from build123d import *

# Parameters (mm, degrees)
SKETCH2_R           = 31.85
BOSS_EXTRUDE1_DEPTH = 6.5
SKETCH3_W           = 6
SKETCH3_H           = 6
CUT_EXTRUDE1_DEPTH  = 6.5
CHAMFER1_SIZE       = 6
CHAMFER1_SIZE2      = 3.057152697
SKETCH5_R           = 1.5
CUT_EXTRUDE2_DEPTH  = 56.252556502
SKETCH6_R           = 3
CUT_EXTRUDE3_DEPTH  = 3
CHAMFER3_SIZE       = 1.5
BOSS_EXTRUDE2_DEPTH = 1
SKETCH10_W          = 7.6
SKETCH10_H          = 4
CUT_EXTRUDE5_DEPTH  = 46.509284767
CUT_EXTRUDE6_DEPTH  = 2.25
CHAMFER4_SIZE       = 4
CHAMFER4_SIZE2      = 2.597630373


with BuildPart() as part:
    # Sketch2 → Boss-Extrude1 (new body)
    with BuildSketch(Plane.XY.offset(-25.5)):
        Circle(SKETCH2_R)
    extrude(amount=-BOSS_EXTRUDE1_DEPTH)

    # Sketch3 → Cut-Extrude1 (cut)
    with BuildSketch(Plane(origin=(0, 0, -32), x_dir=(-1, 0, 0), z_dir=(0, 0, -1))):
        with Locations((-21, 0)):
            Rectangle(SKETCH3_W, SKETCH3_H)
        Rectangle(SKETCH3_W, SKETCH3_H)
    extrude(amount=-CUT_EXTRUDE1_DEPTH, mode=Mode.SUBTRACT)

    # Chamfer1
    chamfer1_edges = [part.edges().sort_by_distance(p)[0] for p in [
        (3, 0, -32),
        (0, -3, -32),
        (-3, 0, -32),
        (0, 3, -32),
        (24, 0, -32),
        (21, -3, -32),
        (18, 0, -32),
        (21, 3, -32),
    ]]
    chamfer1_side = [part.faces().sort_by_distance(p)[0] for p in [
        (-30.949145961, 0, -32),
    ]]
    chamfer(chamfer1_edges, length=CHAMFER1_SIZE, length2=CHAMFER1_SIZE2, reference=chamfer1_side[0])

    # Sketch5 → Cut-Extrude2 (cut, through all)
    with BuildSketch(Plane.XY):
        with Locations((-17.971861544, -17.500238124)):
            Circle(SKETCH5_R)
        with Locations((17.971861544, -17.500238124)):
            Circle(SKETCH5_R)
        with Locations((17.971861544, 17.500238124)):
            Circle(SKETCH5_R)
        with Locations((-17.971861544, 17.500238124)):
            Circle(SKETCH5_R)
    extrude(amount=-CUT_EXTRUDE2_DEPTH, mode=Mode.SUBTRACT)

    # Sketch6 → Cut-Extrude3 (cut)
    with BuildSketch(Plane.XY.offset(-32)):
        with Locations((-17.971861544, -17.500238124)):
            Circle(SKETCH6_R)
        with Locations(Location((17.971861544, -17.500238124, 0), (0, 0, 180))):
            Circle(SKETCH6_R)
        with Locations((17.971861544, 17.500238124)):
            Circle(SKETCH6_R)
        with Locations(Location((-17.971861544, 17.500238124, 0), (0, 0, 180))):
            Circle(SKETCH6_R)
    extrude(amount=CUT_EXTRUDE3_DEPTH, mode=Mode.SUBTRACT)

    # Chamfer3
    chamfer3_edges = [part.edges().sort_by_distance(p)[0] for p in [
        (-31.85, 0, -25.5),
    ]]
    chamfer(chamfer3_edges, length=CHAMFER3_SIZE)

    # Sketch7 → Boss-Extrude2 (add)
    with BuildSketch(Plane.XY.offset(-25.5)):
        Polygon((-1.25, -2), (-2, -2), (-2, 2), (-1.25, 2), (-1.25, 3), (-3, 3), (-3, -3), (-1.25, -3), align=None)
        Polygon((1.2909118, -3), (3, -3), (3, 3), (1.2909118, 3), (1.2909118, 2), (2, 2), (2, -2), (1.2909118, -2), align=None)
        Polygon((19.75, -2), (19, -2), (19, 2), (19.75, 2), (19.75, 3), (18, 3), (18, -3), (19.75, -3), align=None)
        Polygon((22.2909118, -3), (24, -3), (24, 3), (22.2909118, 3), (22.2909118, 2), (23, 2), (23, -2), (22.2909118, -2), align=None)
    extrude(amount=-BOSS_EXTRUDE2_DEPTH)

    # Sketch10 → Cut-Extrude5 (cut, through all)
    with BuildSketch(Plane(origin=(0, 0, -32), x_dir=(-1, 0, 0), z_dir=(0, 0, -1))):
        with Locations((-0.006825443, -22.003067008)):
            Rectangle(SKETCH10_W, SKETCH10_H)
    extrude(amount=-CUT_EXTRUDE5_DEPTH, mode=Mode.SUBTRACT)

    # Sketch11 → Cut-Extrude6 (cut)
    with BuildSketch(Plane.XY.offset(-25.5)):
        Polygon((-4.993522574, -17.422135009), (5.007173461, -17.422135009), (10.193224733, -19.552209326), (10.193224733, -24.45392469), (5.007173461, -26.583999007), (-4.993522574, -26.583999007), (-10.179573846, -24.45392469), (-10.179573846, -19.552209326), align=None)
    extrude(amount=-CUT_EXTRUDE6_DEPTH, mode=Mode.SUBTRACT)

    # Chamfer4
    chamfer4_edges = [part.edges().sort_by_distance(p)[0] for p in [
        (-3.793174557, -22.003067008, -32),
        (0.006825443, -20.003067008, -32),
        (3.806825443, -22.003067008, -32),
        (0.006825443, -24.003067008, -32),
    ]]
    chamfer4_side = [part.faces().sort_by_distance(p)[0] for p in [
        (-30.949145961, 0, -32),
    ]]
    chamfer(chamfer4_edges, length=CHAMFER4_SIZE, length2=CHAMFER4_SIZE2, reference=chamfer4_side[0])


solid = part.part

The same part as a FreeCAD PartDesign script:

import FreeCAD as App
import Part
import Sketcher
Q = App.Units.Quantity


def edges_at(feature, points):
    """Names of the edges that pass closest to the given points."""
    edges = feature.Shape.Edges
    near = lambda p: min(range(len(edges)), key=lambda i: edges[i].distToShape(Part.Vertex(*p))[0])
    return sorted({f"Edge{near(p) + 1}" for p in points})


def add_polygon(sketch, points):
    """Adds a closed chain of lines whose ends are joined by coincident constraints."""
    first, n = sketch.GeometryCount, len(points)
    for a, b in zip(points, points[1:] + points[:1]):
        sketch.addGeometry(Part.LineSegment(App.Vector(*a, 0), App.Vector(*b, 0)), False)
    for i in range(n):
        sketch.addConstraint(Sketcher.Constraint("Coincident", first + i, 2, first + (i + 1) % n, 1))

doc = App.newDocument("Part")
params = doc.addObject("Spreadsheet::Sheet", "Params")
for row, (alias, value) in enumerate([
    ("sketch1_diameter", "63.7 mm"),
    ("pad1_length", "6.5 mm"),
    ("sketch2_width", "6 mm"),
    ("pocket1_length", "6.5 mm"),
    ("chamfer_size", "6 mm"),
    ("chamfer_size2", "3.057153 mm"),
    ("sketch3_diameter", "3 mm"),
    ("sketch4_diameter", "6 mm"),
    ("pocket3_length", "3 mm"),
    ("chamfer2_size", "1.5 mm"),
    ("sketch5_height", "4 mm"),
    ("sketch5_height2", "1 mm"),
    ("sketch5_width", "0.75 mm"),
    ("pad2_length", "1 mm"),
    ("sketch6_height", "4 mm"),
    ("sketch6_width", "7.6 mm"),
    ("pocket5_length", "2.25 mm"),
    ("chamfer3_size", "4 mm"),
    ("chamfer3_size2", "2.59763 mm"),
], start=1):
    params.set(f"A{row}", alias)
    params.set(f"B{row}", "=" + value)
    params.setAlias(f"B{row}", alias)

body = doc.addObject("PartDesign::Body", "Body")

sketch1 = body.newObject("Sketcher::SketchObject", "Sketch")
sketch1.AttachmentSupport = (doc.getObject("XY_Plane"), [""])
sketch1.MapMode = "FlatFace"
sketch1.AttachmentOffset = App.Placement(App.Vector(0, 0, -25.5), App.Rotation())
sketch1.addGeometry(Part.Circle(App.Vector(0, 0, 0), App.Vector(0, 0, 1), 32), False)
sketch1.addConstraint([
    Sketcher.Constraint("Coincident", 0, 3, -1, 1),
    Sketcher.Constraint("Diameter", 0, Q("63.7 mm")),
])
sketch1.setExpression("Constraints[1]", "Params.sketch1_diameter")
pad1 = body.newObject("PartDesign::Pad", "Pad")
pad1.Profile = sketch1
pad1.setExpression("Length", "Params.pad1_length")
pad1.Reversed = True

sketch2 = body.newObject("Sketcher::SketchObject", "Sketch001")
sketch2.AttachmentSupport = (doc.getObject("XY_Plane"), [""])
sketch2.MapMode = "FlatFace"
sketch2.AttachmentOffset = App.Placement(App.Vector(0, 0, -32), App.Rotation())
add_polygon(sketch2, [(24, 3), (24, -3), (18, -3), (18, 3)])
add_polygon(sketch2, [(3, 3), (3, -3), (-3, -3), (-3, 3)])
sketch2.addConstraint([
    Sketcher.Constraint("Vertical", 0),
    Sketcher.Constraint("Horizontal", 1),
    Sketcher.Constraint("Vertical", 2),
    Sketcher.Constraint("Horizontal", 3),
    Sketcher.Constraint("Vertical", 4),
    Sketcher.Constraint("Horizontal", 5),
    Sketcher.Constraint("Vertical", 6),
    Sketcher.Constraint("Horizontal", 7),
    Sketcher.Constraint("Symmetric", 4, 2, 6, 2, -1, 1),
    Sketcher.Constraint("Horizontal", 1, 2, 4, 2),
    Sketcher.Constraint("Horizontal", 3, 2, 6, 2),
    Sketcher.Constraint("Equal", 3, 5),
    Sketcher.Constraint("Equal", 7, 0),
    Sketcher.Constraint("DistanceX", 1, 2, 1, 1, Q("6 mm")),
    Sketcher.Constraint("DistanceX", -1, 1, 0, 2, Q("24 mm")),
])
sketch2.setExpression("Constraints[21]", "Params.sketch2_width")
pocket1 = body.newObject("PartDesign::Pocket", "Pocket")
pocket1.Profile = sketch2
pocket1.setExpression("Length", "Params.pocket1_length")
pocket1.Reversed = True
doc.recompute()

chamfer = body.newObject("PartDesign::Chamfer", "Chamfer")
chamfer.Base = (pocket1, edges_at(pocket1, [
    (3, 0, -32),
    (0, -3, -32),
    (-3, 0, -32),
    (0, 3, -32),
    (24, 0, -32),
    (21, -3, -32),
    (18, 0, -32),
    (21, 3, -32),
]))
chamfer.ChamferType = "Two distances"
chamfer.setExpression("Size", "Params.chamfer_size")
chamfer.setExpression("Size2", "Params.chamfer_size2")

sketch3 = body.newObject("Sketcher::SketchObject", "Sketch002")
sketch3.AttachmentSupport = (doc.getObject("XY_Plane"), [""])
sketch3.MapMode = "FlatFace"
sketch3.addGeometry([
    Part.Circle(App.Vector(-18, -17.5, 0), App.Vector(0, 0, 1), 1.5),
    Part.Circle(App.Vector(18, -17.5, 0), App.Vector(0, 0, 1), 1.5),
    Part.Circle(App.Vector(18, 17.5, 0), App.Vector(0, 0, 1), 1.5),
    Part.Circle(App.Vector(-18, 17.5, 0), App.Vector(0, 0, 1), 1.5),
], False)
sketch3.addConstraint([
    Sketcher.Constraint("Equal", 0, 1),
    Sketcher.Constraint("Equal", 1, 2),
    Sketcher.Constraint("Equal", 2, 3),
    Sketcher.Constraint("Symmetric", 0, 3, 2, 3, -1, 1),
    Sketcher.Constraint("Symmetric", 1, 3, 3, 3, -1, 1),
    Sketcher.Constraint("Symmetric", 0, 3, 1, 3, -2),
    Sketcher.Constraint("Diameter", 0, Q("3 mm")),
    Sketcher.Constraint("DistanceX", 0, 3, -1, 1, Q("17.971862 mm")),
    Sketcher.Constraint("DistanceY", 0, 3, -1, 1, Q("17.500238 mm")),
])
sketch3.setExpression("Constraints[6]", "Params.sketch3_diameter")
pocket2 = body.newObject("PartDesign::Pocket", "Pocket001")
pocket2.Profile = sketch3
pocket2.Type = "ThroughAll"

sketch4 = body.newObject("Sketcher::SketchObject", "Sketch003")
sketch4.AttachmentSupport = (doc.getObject("XY_Plane"), [""])
sketch4.MapMode = "FlatFace"
sketch4.AttachmentOffset = App.Placement(App.Vector(0, 0, -32), App.Rotation())
sketch4.addGeometry([
    Part.Circle(App.Vector(-18, -17.5, 0), App.Vector(0, 0, 1), 3),
    Part.Circle(App.Vector(18, -17.5, 0), App.Vector(0, 0, 1), 3),
    Part.Circle(App.Vector(18, 17.5, 0), App.Vector(0, 0, 1), 3),
    Part.Circle(App.Vector(-18, 17.5, 0), App.Vector(0, 0, 1), 3),
], False)
sketch4.addConstraint([
    Sketcher.Constraint("Equal", 0, 1),
    Sketcher.Constraint("Equal", 1, 2),
    Sketcher.Constraint("Equal", 2, 3),
    Sketcher.Constraint("Symmetric", 0, 3, 2, 3, -1, 1),
    Sketcher.Constraint("Symmetric", 1, 3, 3, 3, -1, 1),
    Sketcher.Constraint("Symmetric", 0, 3, 1, 3, -2),
    Sketcher.Constraint("Diameter", 0, Q("6 mm")),
    Sketcher.Constraint("DistanceX", 0, 3, -1, 1, Q("17.971862 mm")),
    Sketcher.Constraint("DistanceY", 0, 3, -1, 1, Q("17.500238 mm")),
])
sketch4.setExpression("Constraints[6]", "Params.sketch4_diameter")
pocket3 = body.newObject("PartDesign::Pocket", "Pocket002")
pocket3.Profile = sketch4
pocket3.setExpression("Length", "Params.pocket3_length")
pocket3.Reversed = True
doc.recompute()

chamfer2 = body.newObject("PartDesign::Chamfer", "Chamfer001")
chamfer2.Base = (pocket3, edges_at(pocket3, [(-31.85, 0, -25.5)]))
chamfer2.setExpression("Size", "Params.chamfer2_size")

sketch5 = body.newObject("Sketcher::SketchObject", "Sketch004")
sketch5.AttachmentSupport = (doc.getObject("XY_Plane"), [""])
sketch5.MapMode = "FlatFace"
sketch5.AttachmentOffset = App.Placement(App.Vector(0, 0, -25.5), App.Rotation())
add_polygon(sketch5, [(-1.2, -2), (-2, -2), (-2, 2), (-1.2, 2), (-1.2, 3), (-3, 3), (-3, -3), (-1.2, -3)])
add_polygon(sketch5, [(1.3, -3), (3, -3), (3, 3), (1.3, 3), (1.3, 2), (2, 2), (2, -2), (1.3, -2)])
add_polygon(sketch5, [(19.8, -2), (19, -2), (19, 2), (19.8, 2), (19.8, 3), (18, 3), (18, -3), (19.8, -3)])
add_polygon(sketch5, [(22.3, -3), (24, -3), (24, 3), (22.3, 3), (22.3, 2), (23, 2), (23, -2), (22.3, -2)])
sketch5.addConstraint([
    Sketcher.Constraint("Horizontal", 0),
    Sketcher.Constraint("Vertical", 1),
    Sketcher.Constraint("Horizontal", 2),
    Sketcher.Constraint("Vertical", 3),
    Sketcher.Constraint("Horizontal", 4),
    Sketcher.Constraint("Vertical", 5),
    Sketcher.Constraint("Horizontal", 6),
    Sketcher.Constraint("Vertical", 7),
    Sketcher.Constraint("Horizontal", 8),
    Sketcher.Constraint("Vertical", 9),
    Sketcher.Constraint("Horizontal", 10),
    Sketcher.Constraint("Vertical", 11),
    Sketcher.Constraint("Horizontal", 12),
    Sketcher.Constraint("Vertical", 13),
    Sketcher.Constraint("Horizontal", 14),
    Sketcher.Constraint("Vertical", 15),
    Sketcher.Constraint("Horizontal", 16),
    Sketcher.Constraint("Vertical", 17),
    Sketcher.Constraint("Horizontal", 18),
    Sketcher.Constraint("Vertical", 19),
    Sketcher.Constraint("Horizontal", 20),
    Sketcher.Constraint("Vertical", 21),
    Sketcher.Constraint("Horizontal", 22),
    Sketcher.Constraint("Vertical", 23),
    Sketcher.Constraint("Horizontal", 24),
    Sketcher.Constraint("Vertical", 25),
    Sketcher.Constraint("Horizontal", 26),
    Sketcher.Constraint("Vertical", 27),
    Sketcher.Constraint("Horizontal", 28),
    Sketcher.Constraint("Vertical", 29),
    Sketcher.Constraint("Horizontal", 30),
    Sketcher.Constraint("Vertical", 31),
    Sketcher.Constraint("Symmetric", 4, 2, 8, 2, -1, 1),
    Sketcher.Constraint("Symmetric", 0, 2, 12, 2, -1, 1),
    Sketcher.Constraint("Symmetric", 3, 2, 6, 2, -1),
    Sketcher.Constraint("Symmetric", 11, 2, 14, 2, -1),
    Sketcher.Constraint("Symmetric", 19, 2, 22, 2, -1),
    Sketcher.Constraint("Symmetric", 27, 2, 30, 2, -1),
    Sketcher.Constraint("Horizontal", 4, 2, 9, 2),
    Sketcher.Constraint("Horizontal", 2, 2, 11, 2),
    Sketcher.Constraint("Horizontal", 14, 2, 16, 2),
    Sketcher.Constraint("Horizontal", 12, 2, 17, 2),
    Sketcher.Constraint("Horizontal", 10, 2, 19, 2),
    Sketcher.Constraint("Horizontal", 22, 2, 24, 2),
    Sketcher.Constraint("Horizontal", 20, 2, 25, 2),
    Sketcher.Constraint("Horizontal", 18, 2, 27, 2),
    Sketcher.Constraint("Equal", 2, 16),
    Sketcher.Constraint("Equal", 6, 20),
    Sketcher.Constraint("Equal", 10, 24),
    Sketcher.Constraint("Equal", 14, 28),
    Sketcher.Constraint("DistanceY", 1, 1, 1, 2, Q("4 mm")),
    Sketcher.Constraint("DistanceY", 3, 1, 3, 2, Q("1 mm")),
    Sketcher.Constraint("DistanceX", 0, 2, -1, 1, Q("2 mm")),
    Sketcher.Constraint("DistanceX", 4, 2, -1, 1, Q("3 mm")),
    Sketcher.Constraint("DistanceX", -1, 1, 16, 2, Q("19 mm")),
    Sketcher.Constraint("DistanceX", -1, 1, 24, 2, Q("24 mm")),
    Sketcher.Constraint("DistanceX", 0, 2, 0, 1, Q("0.75 mm")),
    Sketcher.Constraint("DistanceX", 8, 1, 8, 2, Q("1.709088 mm")),
])
sketch5.setExpression("Constraints[82]", "Params.sketch5_height")
sketch5.setExpression("Constraints[83]", "Params.sketch5_height2")
sketch5.setExpression("Constraints[88]", "Params.sketch5_width")
pad2 = body.newObject("PartDesign::Pad", "Pad001")
pad2.Profile = sketch5
pad2.setExpression("Length", "Params.pad2_length")
pad2.Reversed = True

sketch6 = body.newObject("Sketcher::SketchObject", "Sketch005")
sketch6.AttachmentSupport = (doc.getObject("XY_Plane"), [""])
sketch6.MapMode = "FlatFace"
sketch6.AttachmentOffset = App.Placement(App.Vector(0, 0, -32), App.Rotation())
add_polygon(sketch6, [(3.8, -20), (3.8, -24), (-3.8, -24), (-3.8, -20)])
sketch6.addConstraint([
    Sketcher.Constraint("Vertical", 0),
    Sketcher.Constraint("Horizontal", 1),
    Sketcher.Constraint("Vertical", 2),
    Sketcher.Constraint("Horizontal", 3),
    Sketcher.Constraint("DistanceY", 0, 2, 0, 1, Q("4 mm")),
    Sketcher.Constraint("DistanceX", 1, 2, 1, 1, Q("7.6 mm")),
    Sketcher.Constraint("DistanceX", -1, 1, 0, 2, Q("3.806825 mm")),
    Sketcher.Constraint("DistanceY", 0, 2, -1, 1, Q("24.003067 mm")),
])
sketch6.setExpression("Constraints[8]", "Params.sketch6_height")
sketch6.setExpression("Constraints[9]", "Params.sketch6_width")
pocket4 = body.newObject("PartDesign::Pocket", "Pocket003")
pocket4.Profile = sketch6
pocket4.Type = "ThroughAll"
pocket4.Reversed = True

sketch7 = body.newObject("Sketcher::SketchObject", "Sketch006")
sketch7.AttachmentSupport = (doc.getObject("XY_Plane"), [""])
sketch7.MapMode = "FlatFace"
sketch7.AttachmentOffset = App.Placement(App.Vector(0, 0, -25.5), App.Rotation())
add_polygon(sketch7, [(5, -17.4), (-5, -17.4), (-10.2, -19.6), (-10.2, -24.5), (-5, -26.6), (5, -26.6), (10.2, -24.5), (10.2, -19.6)])
sketch7.addConstraint([
    Sketcher.Constraint("Horizontal", 0),
    Sketcher.Constraint("Vertical", 2),
    Sketcher.Constraint("Horizontal", 4),
    Sketcher.Constraint("Vertical", 6),
    Sketcher.Constraint("Parallel", 1, 5),
    Sketcher.Constraint("Parallel", 3, 7),
    Sketcher.Constraint("Horizontal", 2, 2, 5, 2),
    Sketcher.Constraint("Horizontal", 1, 2, 6, 2),
    Sketcher.Constraint("Vertical", 0, 2, 3, 2),
    Sketcher.Constraint("Vertical", 4, 2, 7, 2),
    Sketcher.Constraint("DistanceY", 3, 2, -1, 1, Q("26.583999 mm")),
    Sketcher.Constraint("DistanceX", 2, 2, 5, 2, Q("20.372799 mm")),
    Sketcher.Constraint("DistanceX", 0, 2, 0, 1, Q("10.000696 mm")),
    Sketcher.Constraint("DistanceY", 2, 2, 2, 1, Q("4.901715 mm")),
    Sketcher.Constraint("DistanceY", 1, 2, -1, 1, Q("19.552209 mm")),
    Sketcher.Constraint("DistanceX", 0, 2, -1, 1, Q("4.993523 mm")),
])
pocket5 = body.newObject("PartDesign::Pocket", "Pocket004")
pocket5.Profile = sketch7
pocket5.setExpression("Length", "Params.pocket5_length")
doc.recompute()

chamfer3 = body.newObject("PartDesign::Chamfer", "Chamfer002")
chamfer3.Base = (pocket5, edges_at(pocket5, [
    (-3.793, -22.003, -32),
    (0.007, -20.003, -32),
    (3.807, -22.003, -32),
    (0.007, -24.003, -32),
]))
chamfer3.ChamferType = "Two distances"
chamfer3.setExpression("Size", "Params.chamfer3_size")
chamfer3.setExpression("Size2", "Params.chamfer3_size2")

doc.recompute()
